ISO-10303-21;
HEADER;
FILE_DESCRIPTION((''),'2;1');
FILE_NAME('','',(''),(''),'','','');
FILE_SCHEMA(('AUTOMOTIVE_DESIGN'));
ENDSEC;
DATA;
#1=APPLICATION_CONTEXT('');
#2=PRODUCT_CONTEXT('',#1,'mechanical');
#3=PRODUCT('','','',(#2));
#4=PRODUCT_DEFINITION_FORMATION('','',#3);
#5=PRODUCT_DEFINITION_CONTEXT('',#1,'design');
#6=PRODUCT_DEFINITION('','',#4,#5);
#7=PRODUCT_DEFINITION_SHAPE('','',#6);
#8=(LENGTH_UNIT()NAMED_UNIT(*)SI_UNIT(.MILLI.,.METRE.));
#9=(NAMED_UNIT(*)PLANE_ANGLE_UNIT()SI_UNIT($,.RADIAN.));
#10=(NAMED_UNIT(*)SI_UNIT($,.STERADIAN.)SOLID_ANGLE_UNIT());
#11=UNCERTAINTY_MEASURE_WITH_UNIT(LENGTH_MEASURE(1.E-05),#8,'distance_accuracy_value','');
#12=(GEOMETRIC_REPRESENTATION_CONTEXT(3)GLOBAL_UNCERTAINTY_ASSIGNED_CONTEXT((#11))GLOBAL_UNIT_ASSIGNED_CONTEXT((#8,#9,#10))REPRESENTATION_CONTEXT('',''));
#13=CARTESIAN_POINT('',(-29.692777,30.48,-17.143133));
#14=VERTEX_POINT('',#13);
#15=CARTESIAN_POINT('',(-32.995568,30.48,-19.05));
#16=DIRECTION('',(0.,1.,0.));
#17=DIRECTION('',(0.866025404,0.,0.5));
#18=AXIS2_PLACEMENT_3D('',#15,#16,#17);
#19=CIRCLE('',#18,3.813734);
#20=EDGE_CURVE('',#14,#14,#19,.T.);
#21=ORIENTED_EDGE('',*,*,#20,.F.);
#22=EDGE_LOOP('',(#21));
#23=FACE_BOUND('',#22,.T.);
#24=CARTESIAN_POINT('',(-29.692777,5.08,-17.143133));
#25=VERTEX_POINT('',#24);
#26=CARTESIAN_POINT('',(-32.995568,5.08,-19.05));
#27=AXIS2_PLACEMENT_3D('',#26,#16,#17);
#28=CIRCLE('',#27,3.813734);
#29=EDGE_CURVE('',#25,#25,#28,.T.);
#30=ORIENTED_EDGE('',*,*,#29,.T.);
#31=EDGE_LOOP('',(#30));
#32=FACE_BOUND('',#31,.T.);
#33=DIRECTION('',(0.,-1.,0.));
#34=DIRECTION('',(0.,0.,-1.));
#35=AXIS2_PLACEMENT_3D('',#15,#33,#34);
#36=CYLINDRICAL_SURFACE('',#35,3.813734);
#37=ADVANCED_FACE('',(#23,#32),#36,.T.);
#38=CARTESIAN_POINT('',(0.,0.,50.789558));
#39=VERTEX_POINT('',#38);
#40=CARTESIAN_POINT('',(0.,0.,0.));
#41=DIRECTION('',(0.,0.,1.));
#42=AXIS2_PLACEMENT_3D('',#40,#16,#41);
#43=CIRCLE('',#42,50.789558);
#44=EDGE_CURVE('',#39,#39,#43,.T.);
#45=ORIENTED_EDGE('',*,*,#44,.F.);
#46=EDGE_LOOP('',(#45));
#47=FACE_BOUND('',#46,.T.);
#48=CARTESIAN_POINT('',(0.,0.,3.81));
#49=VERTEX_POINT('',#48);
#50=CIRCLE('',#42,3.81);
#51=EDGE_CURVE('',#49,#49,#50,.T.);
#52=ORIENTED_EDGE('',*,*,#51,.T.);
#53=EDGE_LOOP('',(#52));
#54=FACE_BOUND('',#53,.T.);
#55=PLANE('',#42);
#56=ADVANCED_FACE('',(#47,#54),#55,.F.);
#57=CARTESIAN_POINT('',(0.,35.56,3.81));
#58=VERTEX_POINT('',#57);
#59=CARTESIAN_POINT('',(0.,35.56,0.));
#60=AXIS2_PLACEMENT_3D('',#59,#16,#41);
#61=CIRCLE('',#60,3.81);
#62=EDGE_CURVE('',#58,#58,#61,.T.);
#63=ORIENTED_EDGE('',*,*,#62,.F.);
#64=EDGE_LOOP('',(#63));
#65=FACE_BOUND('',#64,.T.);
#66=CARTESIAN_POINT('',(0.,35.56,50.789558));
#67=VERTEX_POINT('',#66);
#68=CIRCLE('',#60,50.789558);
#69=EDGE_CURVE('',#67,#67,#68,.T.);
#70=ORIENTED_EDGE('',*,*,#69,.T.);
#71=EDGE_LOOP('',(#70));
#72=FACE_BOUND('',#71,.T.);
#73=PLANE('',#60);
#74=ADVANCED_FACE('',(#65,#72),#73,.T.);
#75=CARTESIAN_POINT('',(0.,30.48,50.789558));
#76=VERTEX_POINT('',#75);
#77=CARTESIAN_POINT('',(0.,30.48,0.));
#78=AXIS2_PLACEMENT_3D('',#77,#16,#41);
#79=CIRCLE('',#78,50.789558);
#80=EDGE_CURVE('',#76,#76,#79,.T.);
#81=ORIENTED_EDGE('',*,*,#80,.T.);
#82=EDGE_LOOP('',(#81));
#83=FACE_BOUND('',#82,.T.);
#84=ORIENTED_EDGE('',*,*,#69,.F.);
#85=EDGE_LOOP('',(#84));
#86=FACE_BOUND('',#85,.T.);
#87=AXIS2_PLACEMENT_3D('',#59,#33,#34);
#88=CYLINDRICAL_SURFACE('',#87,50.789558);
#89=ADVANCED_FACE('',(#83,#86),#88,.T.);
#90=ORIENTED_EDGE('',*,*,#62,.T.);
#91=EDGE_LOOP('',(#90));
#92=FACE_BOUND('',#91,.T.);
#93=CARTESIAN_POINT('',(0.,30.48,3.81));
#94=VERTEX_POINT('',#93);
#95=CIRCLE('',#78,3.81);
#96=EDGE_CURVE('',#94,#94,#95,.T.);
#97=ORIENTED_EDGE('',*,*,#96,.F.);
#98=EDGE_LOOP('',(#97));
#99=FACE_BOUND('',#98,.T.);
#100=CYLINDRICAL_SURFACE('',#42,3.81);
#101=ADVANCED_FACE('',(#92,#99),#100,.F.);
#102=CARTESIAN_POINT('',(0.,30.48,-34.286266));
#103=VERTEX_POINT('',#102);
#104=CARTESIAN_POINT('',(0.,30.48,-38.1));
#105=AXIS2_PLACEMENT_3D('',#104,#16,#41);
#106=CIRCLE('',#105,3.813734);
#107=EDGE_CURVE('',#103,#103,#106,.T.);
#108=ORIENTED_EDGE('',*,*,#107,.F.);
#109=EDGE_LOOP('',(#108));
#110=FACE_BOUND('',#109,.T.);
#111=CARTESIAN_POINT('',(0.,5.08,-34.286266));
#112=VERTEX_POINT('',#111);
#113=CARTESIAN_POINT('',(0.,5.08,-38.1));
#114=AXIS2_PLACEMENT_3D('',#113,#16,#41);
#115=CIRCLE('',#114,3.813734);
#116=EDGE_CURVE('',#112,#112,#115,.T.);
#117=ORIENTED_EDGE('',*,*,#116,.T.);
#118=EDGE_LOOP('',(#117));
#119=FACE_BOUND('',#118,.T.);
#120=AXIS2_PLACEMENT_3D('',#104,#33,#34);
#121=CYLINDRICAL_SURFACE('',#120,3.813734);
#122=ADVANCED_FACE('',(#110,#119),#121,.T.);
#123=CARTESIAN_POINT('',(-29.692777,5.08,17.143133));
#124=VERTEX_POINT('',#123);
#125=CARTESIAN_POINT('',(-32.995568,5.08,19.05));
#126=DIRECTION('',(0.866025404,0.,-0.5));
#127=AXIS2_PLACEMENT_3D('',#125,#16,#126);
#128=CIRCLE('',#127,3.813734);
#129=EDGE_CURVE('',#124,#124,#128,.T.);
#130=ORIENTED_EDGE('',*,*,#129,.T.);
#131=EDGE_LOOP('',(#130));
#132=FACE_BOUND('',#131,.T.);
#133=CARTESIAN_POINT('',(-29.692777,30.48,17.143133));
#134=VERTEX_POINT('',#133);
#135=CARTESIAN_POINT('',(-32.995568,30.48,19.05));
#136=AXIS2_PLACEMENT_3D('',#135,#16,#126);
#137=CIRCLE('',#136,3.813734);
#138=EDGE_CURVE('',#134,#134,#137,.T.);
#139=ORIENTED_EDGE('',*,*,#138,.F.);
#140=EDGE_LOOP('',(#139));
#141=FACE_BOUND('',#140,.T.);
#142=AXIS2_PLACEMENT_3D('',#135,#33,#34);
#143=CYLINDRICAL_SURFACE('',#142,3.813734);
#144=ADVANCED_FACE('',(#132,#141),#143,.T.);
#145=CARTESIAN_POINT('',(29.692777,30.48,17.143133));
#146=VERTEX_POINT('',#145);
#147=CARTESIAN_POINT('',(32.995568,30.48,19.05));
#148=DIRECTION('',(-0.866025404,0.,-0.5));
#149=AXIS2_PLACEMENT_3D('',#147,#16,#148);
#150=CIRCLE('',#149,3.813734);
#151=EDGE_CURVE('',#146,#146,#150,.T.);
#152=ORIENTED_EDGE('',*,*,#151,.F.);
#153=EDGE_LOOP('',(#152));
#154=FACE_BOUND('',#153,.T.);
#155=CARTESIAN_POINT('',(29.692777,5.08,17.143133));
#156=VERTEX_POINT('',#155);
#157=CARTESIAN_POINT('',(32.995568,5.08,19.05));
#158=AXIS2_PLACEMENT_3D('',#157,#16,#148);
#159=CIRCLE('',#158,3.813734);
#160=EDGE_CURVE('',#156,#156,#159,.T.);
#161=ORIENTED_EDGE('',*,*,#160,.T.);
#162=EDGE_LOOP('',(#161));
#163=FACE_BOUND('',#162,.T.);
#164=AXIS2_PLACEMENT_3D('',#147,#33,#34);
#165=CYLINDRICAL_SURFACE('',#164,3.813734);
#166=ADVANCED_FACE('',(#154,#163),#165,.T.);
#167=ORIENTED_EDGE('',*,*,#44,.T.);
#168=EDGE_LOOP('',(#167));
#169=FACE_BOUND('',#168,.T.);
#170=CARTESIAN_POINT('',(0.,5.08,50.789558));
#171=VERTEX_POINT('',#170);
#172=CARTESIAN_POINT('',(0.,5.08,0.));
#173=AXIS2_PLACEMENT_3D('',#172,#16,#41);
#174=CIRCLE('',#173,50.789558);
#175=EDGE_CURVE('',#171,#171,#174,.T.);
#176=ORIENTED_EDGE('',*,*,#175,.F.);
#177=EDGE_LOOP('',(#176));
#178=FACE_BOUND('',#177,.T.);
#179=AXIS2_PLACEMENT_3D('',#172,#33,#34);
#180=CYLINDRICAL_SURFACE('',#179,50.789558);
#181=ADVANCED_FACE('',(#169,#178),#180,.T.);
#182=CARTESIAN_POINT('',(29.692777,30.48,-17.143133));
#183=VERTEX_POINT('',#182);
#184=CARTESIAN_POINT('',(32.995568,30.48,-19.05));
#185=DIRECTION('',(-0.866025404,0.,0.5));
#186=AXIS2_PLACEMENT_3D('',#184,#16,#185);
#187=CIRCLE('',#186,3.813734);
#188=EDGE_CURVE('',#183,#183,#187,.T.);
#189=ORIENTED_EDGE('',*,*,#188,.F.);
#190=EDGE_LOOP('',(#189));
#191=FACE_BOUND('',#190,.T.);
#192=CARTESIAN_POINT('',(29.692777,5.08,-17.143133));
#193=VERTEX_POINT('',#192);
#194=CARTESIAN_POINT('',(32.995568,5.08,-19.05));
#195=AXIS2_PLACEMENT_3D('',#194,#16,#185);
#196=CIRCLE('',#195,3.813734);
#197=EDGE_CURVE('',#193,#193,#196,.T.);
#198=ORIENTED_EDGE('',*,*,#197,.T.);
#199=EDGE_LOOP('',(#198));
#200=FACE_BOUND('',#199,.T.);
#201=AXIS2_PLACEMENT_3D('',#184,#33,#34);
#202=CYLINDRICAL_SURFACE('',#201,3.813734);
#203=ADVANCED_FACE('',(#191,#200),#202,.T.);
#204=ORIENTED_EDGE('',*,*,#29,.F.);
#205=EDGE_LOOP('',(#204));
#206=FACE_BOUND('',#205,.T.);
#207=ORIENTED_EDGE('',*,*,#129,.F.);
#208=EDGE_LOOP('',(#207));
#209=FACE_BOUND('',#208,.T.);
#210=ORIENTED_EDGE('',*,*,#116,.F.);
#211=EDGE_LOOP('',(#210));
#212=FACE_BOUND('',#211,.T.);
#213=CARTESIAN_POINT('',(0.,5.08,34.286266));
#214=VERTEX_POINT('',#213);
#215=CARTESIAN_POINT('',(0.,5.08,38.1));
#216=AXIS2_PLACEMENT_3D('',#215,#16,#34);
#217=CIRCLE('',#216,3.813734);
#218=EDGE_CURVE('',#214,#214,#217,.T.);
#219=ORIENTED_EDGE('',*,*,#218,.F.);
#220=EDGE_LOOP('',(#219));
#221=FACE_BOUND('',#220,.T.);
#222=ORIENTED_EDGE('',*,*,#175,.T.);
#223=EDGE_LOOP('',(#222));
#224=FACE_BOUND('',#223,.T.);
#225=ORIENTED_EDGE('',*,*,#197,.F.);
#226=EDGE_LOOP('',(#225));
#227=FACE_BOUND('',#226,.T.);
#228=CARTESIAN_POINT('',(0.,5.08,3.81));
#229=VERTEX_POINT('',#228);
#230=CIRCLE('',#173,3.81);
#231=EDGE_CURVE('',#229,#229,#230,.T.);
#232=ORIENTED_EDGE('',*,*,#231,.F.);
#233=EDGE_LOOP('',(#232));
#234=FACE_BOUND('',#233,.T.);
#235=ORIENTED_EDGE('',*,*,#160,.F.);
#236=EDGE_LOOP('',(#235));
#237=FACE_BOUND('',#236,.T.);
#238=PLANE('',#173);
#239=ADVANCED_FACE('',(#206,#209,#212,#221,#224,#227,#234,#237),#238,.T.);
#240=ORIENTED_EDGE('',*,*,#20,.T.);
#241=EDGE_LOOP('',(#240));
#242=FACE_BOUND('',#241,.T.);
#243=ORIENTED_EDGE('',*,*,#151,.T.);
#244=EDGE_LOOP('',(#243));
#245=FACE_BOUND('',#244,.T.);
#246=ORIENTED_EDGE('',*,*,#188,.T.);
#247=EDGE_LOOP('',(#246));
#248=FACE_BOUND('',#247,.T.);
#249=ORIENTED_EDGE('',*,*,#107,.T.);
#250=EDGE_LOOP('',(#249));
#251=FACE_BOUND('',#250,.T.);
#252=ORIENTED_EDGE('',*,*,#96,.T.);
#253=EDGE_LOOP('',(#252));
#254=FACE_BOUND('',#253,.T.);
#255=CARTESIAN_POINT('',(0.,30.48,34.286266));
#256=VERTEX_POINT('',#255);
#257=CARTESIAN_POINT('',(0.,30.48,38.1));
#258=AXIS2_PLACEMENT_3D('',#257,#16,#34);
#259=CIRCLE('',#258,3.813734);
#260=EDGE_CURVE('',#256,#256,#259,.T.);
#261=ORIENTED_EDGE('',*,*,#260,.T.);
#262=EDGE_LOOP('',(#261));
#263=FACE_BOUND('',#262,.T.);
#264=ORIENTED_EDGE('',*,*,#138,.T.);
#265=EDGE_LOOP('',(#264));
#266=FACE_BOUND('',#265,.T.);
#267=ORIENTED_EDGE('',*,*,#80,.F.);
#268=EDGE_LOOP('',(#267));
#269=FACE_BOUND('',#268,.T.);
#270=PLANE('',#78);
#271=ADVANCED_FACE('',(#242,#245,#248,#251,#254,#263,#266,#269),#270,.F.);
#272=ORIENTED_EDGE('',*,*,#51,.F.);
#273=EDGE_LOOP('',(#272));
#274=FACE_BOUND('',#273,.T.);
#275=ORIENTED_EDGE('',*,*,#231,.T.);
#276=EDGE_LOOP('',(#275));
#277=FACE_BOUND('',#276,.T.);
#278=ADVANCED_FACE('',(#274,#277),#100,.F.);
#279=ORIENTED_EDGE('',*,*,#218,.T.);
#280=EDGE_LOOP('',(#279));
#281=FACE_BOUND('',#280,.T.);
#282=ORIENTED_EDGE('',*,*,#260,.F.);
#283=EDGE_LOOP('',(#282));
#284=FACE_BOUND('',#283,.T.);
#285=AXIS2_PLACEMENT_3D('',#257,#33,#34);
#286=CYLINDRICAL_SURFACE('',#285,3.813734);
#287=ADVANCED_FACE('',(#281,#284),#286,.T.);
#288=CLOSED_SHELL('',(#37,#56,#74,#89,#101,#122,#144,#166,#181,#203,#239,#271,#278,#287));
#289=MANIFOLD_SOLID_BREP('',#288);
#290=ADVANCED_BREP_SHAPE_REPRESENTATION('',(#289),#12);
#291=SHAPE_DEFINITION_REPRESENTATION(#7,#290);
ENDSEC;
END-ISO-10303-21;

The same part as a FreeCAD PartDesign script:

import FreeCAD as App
import Part
import Sketcher

V = App.Vector
Q = App.Units.Quantity

doc = App.newDocument("Part")
body = doc.addObject("PartDesign::Body", "Body")

# Sketch on XZ plane
sketch1 = body.newObject("Sketcher::SketchObject", "Sketch")
sketch1.AttachmentSupport = (doc.getObject("XZ_Plane"), [""])
sketch1.MapMode = "FlatFace"
sketch1.addGeometry(Part.Circle(V(0, 0, 0), V(0, 0, 1), 51), False)
sketch1.addConstraint([
    Sketcher.Constraint("Coincident", 0, 3, -1, 1),
    Sketcher.Constraint("Diameter", 0, Q("101.579116 mm")),
])
pad1 = body.newObject("PartDesign::Pad", "Pad")
pad1.Profile = sketch1
pad1.Length = Q("0.2 in")
pad1.Reversed = True

# Sketch on XZ plane
sketch2 = body.newObject("Sketcher::SketchObject", "Sketch001")
sketch2.AttachmentSupport = (doc.getObject("XZ_Plane"), [""])
sketch2.MapMode = "FlatFace"
sketch2.AttachmentOffset = App.Placement(V(0, 0, -0.2 * 25.4), App.Rotation())
sketch2.addGeometry(Part.Circle(V(0, -38.1, 0), V(0, 0, 1), 3.8), False)
sketch2.addConstraint([
    Sketcher.Constraint("PointOnObject", 0, 3, -2),
    Sketcher.Constraint("DistanceY", 0, 3, -1, 1, Q("1.5 in")),
    Sketcher.Constraint("Diameter", 0, Q("7.627468 mm")),
])
pad2 = body.newObject("PartDesign::Pad", "Pad001")
pad2.Profile = sketch2
pad2.Length = Q("1 in")
pad2.Reversed = True
doc.recompute()

polarpattern = body.newObject("PartDesign::PolarPattern", "PolarPattern")
polarpattern.Originals = [pad2]
polarpattern.Axis = (doc.getObject("Y_Axis"), [""])
polarpattern.Angle = 360
polarpattern.Occurrences = 6
body.Tip = polarpattern

# Sketch on XZ plane
sketch3 = body.newObject("Sketcher::SketchObject", "Sketch002")
sketch3.AttachmentSupport = (doc.getObject("XZ_Plane"), [""])
sketch3.MapMode = "FlatFace"
sketch3.AttachmentOffset = App.Placement(V(0, 0, -1.2 * 25.4), App.Rotation())
sketch3.addGeometry(Part.Circle(V(0, 0, 0), V(0, 0, 1), 51), False)
sketch3.addConstraint([
    Sketcher.Constraint("Coincident", 0, 3, -1, 1),
    Sketcher.Constraint("Diameter", 0, Q("101.579116 mm")),
])
pad3 = body.newObject("PartDesign::Pad", "Pad002")
pad3.Profile = sketch3
pad3.Length = Q("0.2 in")
pad3.Reversed = True

# Sketch on XZ plane
sketch4 = body.newObject("Sketcher::SketchObject", "Sketch003")
sketch4.AttachmentSupport = (doc.getObject("XZ_Plane"), [""])
sketch4.MapMode = "FlatFace"
sketch4.AttachmentOffset = App.Placement(V(0, 0, -1.4 * 25.4), App.Rotation())
sketch4.addGeometry(Part.Circle(V(0, 0, 0), V(0, 0, 1), 3.8), False)
sketch4.addConstraint([
    Sketcher.Constraint("Coincident", 0, 3, -1, 1),
    Sketcher.Constraint("Diameter", 0, Q("0.3 in")),
])
pocket1 = body.newObject("PartDesign::Pocket", "Pocket")
pocket1.Profile = sketch4
pocket1.Type = "ThroughAll"
pocket1.Reversed = True

doc.recompute()
